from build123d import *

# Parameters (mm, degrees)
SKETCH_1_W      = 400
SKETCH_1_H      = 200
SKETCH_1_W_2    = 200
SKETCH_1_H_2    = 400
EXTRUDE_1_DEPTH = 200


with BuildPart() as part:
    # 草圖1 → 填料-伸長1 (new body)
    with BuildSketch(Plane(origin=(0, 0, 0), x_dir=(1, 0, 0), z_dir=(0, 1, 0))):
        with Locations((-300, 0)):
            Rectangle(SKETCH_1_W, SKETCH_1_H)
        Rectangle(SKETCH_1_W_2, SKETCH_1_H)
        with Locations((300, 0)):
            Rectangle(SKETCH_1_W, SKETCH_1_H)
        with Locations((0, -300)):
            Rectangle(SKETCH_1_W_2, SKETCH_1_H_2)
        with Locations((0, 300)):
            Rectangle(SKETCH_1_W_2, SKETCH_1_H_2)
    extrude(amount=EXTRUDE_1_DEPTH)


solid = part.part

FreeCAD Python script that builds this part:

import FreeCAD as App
import Part
import Sketcher


def add_polygon(sketch, points):
    """Adds a closed chain of lines whose ends are joined by coincident constraints."""
    first, n = sketch.GeometryCount, len(points)
    for a, b in zip(points, points[1:] + points[:1]):
        sketch.addGeometry(Part.LineSegment(App.Vector(*a, 0), App.Vector(*b, 0)), False)
    for i in range(n):
        sketch.addConstraint(Sketcher.Constraint("Coincident", first + i, 2, first + (i + 1) % n, 1))

doc = App.newDocument("Part")
body = doc.addObject("PartDesign::Body", "Body")

# Sketch on XZ plane
sketch1 = doc.addObject("Sketcher::SketchObject", "Sketch")
body.addObject(sketch1)
sketch1.AttachmentSupport = (doc.XZ_Plane, [""])
sketch1.MapMode = "FlatFace"
add_polygon(sketch1, [(-500, -100), (-500, 100), (-100, 100), (-100, 500), (100, 500), (100, 100), (500, 100), (500, -100), (100, -100), (100, -500), (-100, -500), (-100, -100)])  # lines 0-11
sketch1.addConstraint([
    Sketcher.Constraint("Vertical", 0),
    Sketcher.Constraint("Horizontal", 1),
    Sketcher.Constraint("Vertical", 2),
    Sketcher.Constraint("Horizontal", 3),
    Sketcher.Constraint("Vertical", 4),
    Sketcher.Constraint("Horizontal", 5),
    Sketcher.Constraint("Vertical", 6),
    Sketcher.Constraint("Horizontal", 7),
    Sketcher.Constraint("Vertical", 8),
    Sketcher.Constraint("Horizontal", 9),
    Sketcher.Constraint("Vertical", 10),
    Sketcher.Constraint("Horizontal", 11),
    Sketcher.Constraint("Symmetric", 0, 2, 6, 2, -1, 1),
    Sketcher.Constraint("Symmetric", 2, 2, 8, 2, -1, 1),
    Sketcher.Constraint("Symmetric", 4, 2, 10, 2, -1, 1),
    Sketcher.Constraint("Symmetric", 1, 2, 4, 2, -2),
    Sketcher.Constraint("Equal", 9, 0),
    Sketcher.Constraint("Equal", 11, 2),
    Sketcher.Constraint("DistanceX", 1, 1, 1, 2, 400.0),
    Sketcher.Constraint("DistanceX", 3, 1, 3, 2, 200.0),
])
pad1 = doc.addObject("PartDesign::Pad", "Pad")
body.addObject(pad1)
pad1.Profile = sketch1
pad1.Length = 200
pad1.Reversed = True

doc.recompute()
